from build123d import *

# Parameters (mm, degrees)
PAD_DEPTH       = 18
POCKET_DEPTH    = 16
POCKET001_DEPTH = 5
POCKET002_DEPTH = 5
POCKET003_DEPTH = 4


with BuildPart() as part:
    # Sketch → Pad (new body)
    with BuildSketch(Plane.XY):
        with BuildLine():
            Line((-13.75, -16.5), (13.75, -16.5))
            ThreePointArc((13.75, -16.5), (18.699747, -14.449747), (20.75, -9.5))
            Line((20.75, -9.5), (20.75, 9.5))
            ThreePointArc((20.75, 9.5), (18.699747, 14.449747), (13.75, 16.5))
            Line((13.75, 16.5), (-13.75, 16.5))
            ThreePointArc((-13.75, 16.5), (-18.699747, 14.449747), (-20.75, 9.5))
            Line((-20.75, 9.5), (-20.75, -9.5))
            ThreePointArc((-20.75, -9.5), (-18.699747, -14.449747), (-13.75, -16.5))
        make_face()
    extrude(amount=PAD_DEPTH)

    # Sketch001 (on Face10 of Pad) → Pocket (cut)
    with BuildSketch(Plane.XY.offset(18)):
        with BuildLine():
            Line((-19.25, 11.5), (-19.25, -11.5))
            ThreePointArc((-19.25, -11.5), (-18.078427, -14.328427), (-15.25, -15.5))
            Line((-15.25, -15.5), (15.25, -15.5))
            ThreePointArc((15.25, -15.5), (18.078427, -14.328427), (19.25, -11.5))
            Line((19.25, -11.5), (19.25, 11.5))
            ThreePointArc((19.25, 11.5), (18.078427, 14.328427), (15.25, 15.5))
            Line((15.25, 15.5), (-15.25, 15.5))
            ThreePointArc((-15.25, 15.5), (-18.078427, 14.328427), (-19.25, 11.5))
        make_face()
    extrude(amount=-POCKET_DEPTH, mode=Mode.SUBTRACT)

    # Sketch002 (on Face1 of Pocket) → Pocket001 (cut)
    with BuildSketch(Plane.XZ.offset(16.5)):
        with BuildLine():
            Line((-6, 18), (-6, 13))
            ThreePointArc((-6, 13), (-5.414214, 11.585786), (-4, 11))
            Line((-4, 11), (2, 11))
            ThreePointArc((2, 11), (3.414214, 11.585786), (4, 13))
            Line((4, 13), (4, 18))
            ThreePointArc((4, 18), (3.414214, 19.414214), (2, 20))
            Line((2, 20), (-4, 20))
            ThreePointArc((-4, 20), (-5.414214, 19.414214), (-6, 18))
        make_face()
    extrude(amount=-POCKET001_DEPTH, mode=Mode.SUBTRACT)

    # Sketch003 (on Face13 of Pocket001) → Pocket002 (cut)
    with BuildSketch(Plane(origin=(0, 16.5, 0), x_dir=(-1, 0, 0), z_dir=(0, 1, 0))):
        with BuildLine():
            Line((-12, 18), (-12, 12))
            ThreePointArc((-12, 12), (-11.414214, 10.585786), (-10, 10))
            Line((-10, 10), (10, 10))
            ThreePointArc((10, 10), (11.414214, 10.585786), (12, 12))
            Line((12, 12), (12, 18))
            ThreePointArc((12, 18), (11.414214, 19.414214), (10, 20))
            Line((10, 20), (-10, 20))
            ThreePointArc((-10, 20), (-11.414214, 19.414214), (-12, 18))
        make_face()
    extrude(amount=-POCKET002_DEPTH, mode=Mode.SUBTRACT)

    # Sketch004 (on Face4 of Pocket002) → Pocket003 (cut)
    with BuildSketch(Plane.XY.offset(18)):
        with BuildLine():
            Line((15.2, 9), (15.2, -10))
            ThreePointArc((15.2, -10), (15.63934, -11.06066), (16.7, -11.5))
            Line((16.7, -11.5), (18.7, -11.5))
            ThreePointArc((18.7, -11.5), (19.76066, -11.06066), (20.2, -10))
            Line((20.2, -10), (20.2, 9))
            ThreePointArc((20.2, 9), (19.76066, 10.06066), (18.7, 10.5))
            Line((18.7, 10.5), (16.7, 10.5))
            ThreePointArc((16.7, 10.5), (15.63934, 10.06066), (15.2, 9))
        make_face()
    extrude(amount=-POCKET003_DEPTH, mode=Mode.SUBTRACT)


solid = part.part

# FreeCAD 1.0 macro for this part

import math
import FreeCAD as App
import Part
import Sketcher

V = App.Vector
Q = App.Units.Quantity

doc = App.newDocument("Part")
params = doc.addObject("Spreadsheet::Sheet", "Params")
for row, (alias, value) in enumerate([
    ("sketch1_radius", "7.000002 mm"),
    ("sketch1_height", "19 mm"),
    ("sketch1_width", "27.5 mm"),
    ("pad1_length", "18 mm"),
    ("sketch2_radius", "4 mm"),
    ("sketch2_height", "23 mm"),
    ("sketch2_width", "30.5 mm"),
    ("pocket1_length", "16 mm"),
    ("sketch3_radius", "1.999999 mm"),
    ("sketch3_width", "6 mm"),
    ("sketch3_height", "5 mm"),
    ("pocket2_length", "5 mm"),
    ("sketch4_radius", "1.999999 mm"),
    ("sketch4_width", "20 mm"),
    ("sketch4_height", "6 mm"),
    ("pocket3_length", "5 mm"),
    ("sketch5_radius", "1.500001 mm"),
    ("sketch5_width", "2 mm"),
    ("sketch5_height", "19 mm"),
    ("pocket4_length", "4 mm"),
], start=1):
    params.set(f"A{row}", alias)
    params.set(f"B{row}", "=" + value)
    params.setAlias(f"B{row}", alias)

body = doc.addObject("PartDesign::Body", "Body")

sketch1 = doc.addObject("Sketcher::SketchObject", "Sketch")
body.addObject(sketch1)
sketch1.AttachmentSupport = (doc.XY_Plane, [""])
sketch1.MapMode = "FlatFace"
sketch1.addGeometry(Part.LineSegment(V(-13.75, -16.5, 0), V(13.75, -16.5, 0)), False)
sketch1.addGeometry(Part.ArcOfCircle(Part.Circle(V(13.749998, -9.499998, 0), V(0, 0, 1), 7.000002), math.radians(-89.999987), math.radians(-0.000013)), False)
sketch1.addGeometry(Part.LineSegment(V(20.75, -9.5, 0), V(20.75, 9.5, 0)), False)
sketch1.addGeometry(Part.ArcOfCircle(Part.Circle(V(13.749998, 9.499998, 0), V(0, 0, 1), 7.000002), math.radians(0.000013), math.radians(89.999987)), False)
sketch1.addGeometry(Part.LineSegment(V(13.75, 16.5, 0), V(-13.75, 16.5, 0)), False)
sketch1.addGeometry(Part.ArcOfCircle(Part.Circle(V(-13.749998, 9.499998, 0), V(0, 0, 1), 7.000002), math.radians(90.000013), math.radians(179.999987)), False)
sketch1.addGeometry(Part.LineSegment(V(-20.75, 9.5, 0), V(-20.75, -9.5, 0)), False)
sketch1.addGeometry(Part.ArcOfCircle(Part.Circle(V(-13.749998, -9.499998, 0), V(0, 0, 1), 7.000002), math.radians(-179.999987), math.radians(-90.000013)), False)
sketch1.addConstraint(Sketcher.Constraint("Tangent", 0, 2, 1, 1))
sketch1.addConstraint(Sketcher.Constraint("Tangent", 1, 2, 2, 1))
sketch1.addConstraint(Sketcher.Constraint("Tangent", 2, 2, 3, 1))
sketch1.addConstraint(Sketcher.Constraint("Tangent", 3, 2, 4, 1))
sketch1.addConstraint(Sketcher.Constraint("Tangent", 4, 2, 5, 1))
sketch1.addConstraint(Sketcher.Constraint("Tangent", 5, 2, 6, 1))
sketch1.addConstraint(Sketcher.Constraint("Tangent", 6, 2, 7, 1))
sketch1.addConstraint(Sketcher.Constraint("Tangent", 7, 2, 0, 1))
sketch1.addConstraint(Sketcher.Constraint("Horizontal", 0))
sketch1.addConstraint(Sketcher.Constraint("Vertical", 2))
sketch1.addConstraint(Sketcher.Constraint("Horizontal", 4))
sketch1.addConstraint(Sketcher.Constraint("Vertical", 6))
sketch1.addConstraint(Sketcher.Constraint("Equal", 1, 3))
sketch1.addConstraint(Sketcher.Constraint("Equal", 3, 5))
sketch1.addConstraint(Sketcher.Constraint("Equal", 5, 7))
sketch1.addConstraint(Sketcher.Constraint("Symmetric", 1, 3, 5, 3, -1, 1))
sketch1.addConstraint(Sketcher.Constraint("Radius", 1, Q("7.000002 mm")))
sketch1.addConstraint(Sketcher.Constraint("DistanceY", 2, 1, 2, 2, Q("19 mm")))
sketch1.addConstraint(Sketcher.Constraint("DistanceX", 0, 1, 0, 2, Q("27.5 mm")))
sketch1.setExpression("Constraints[16]", "Params.sketch1_radius")
sketch1.setExpression("Constraints[17]", "Params.sketch1_height")
sketch1.setExpression("Constraints[18]", "Params.sketch1_width")
pad1 = doc.addObject("PartDesign::Pad", "Pad")
body.addObject(pad1)
pad1.Profile = sketch1
pad1.setExpression("Length", "Params.pad1_length")

sketch2 = doc.addObject("Sketcher::SketchObject", "Sketch001")
body.addObject(sketch2)
sketch2.AttachmentSupport = (doc.XY_Plane, [""])
sketch2.MapMode = "FlatFace"
sketch2.AttachmentOffset = App.Placement(V(0, 0, 18), App.Rotation())
sketch2.addGeometry(Part.LineSegment(V(-19.25, 11.5, 0), V(-19.25, -11.5, 0)), False)
sketch2.addGeometry(Part.ArcOfCircle(Part.Circle(V(-15.25, -11.5, 0), V(0, 0, 1), 4), math.radians(-179.999994), math.radians(-90.000006)), False)
sketch2.addGeometry(Part.LineSegment(V(-15.25, -15.5, 0), V(15.25, -15.5, 0)), False)
sketch2.addGeometry(Part.ArcOfCircle(Part.Circle(V(15.25, -11.5, 0), V(0, 0, 1), 4), math.radians(-89.999994), math.radians(-0.000006)), False)
sketch2.addGeometry(Part.LineSegment(V(19.25, -11.5, 0), V(19.25, 11.5, 0)), False)
sketch2.addGeometry(Part.ArcOfCircle(Part.Circle(V(15.25, 11.5, 0), V(0, 0, 1), 4), math.radians(0.000006), math.radians(89.999994)), False)
sketch2.addGeometry(Part.LineSegment(V(15.25, 15.5, 0), V(-15.25, 15.5, 0)), False)
sketch2.addGeometry(Part.ArcOfCircle(Part.Circle(V(-15.25, 11.5, 0), V(0, 0, 1), 4), math.radians(90.000006), math.radians(179.999994)), False)
sketch2.addConstraint(Sketcher.Constraint("Tangent", 0, 2, 1, 1))
sketch2.addConstraint(Sketcher.Constraint("Tangent", 1, 2, 2, 1))
sketch2.addConstraint(Sketcher.Constraint("Tangent", 2, 2, 3, 1))
sketch2.addConstraint(Sketcher.Constraint("Tangent", 3, 2, 4, 1))
sketch2.addConstraint(Sketcher.Constraint("Tangent", 4, 2, 5, 1))
sketch2.addConstraint(Sketcher.Constraint("Tangent", 5, 2, 6, 1))
sketch2.addConstraint(Sketcher.Constraint("Tangent", 6, 2, 7, 1))
sketch2.addConstraint(Sketcher.Constraint("Tangent", 7, 2, 0, 1))
sketch2.addConstraint(Sketcher.Constraint("Vertical", 0))
sketch2.addConstraint(Sketcher.Constraint("Horizontal", 2))
sketch2.addConstraint(Sketcher.Constraint("Vertical", 4))
sketch2.addConstraint(Sketcher.Constraint("Horizontal", 6))
sketch2.addConstraint(Sketcher.Constraint("Equal", 1, 3))
sketch2.addConstraint(Sketcher.Constraint("Equal", 3, 5))
sketch2.addConstraint(Sketcher.Constraint("Equal", 5, 7))
sketch2.addConstraint(Sketcher.Constraint("Symmetric", 1, 3, 5, 3, -1, 1))
sketch2.addConstraint(Sketcher.Constraint("Radius", 1, Q("4 mm")))
sketch2.addConstraint(Sketcher.Constraint("DistanceY", 0, 2, 0, 1, Q("23 mm")))
sketch2.addConstraint(Sketcher.Constraint("DistanceX", 2, 1, 2, 2, Q("30.5 mm")))
sketch2.setExpression("Constraints[16]", "Params.sketch2_radius")
sketch2.setExpression("Constraints[17]", "Params.sketch2_height")
sketch2.setExpression("Constraints[18]", "Params.sketch2_width")
pocket1 = doc.addObject("PartDesign::Pocket", "Pocket")
body.addObject(pocket1)
pocket1.Profile = sketch2
pocket1.setExpression("Length", "Params.pocket1_length")

sketch3 = doc.addObject("Sketcher::SketchObject", "Sketch002")
body.addObject(sketch3)
sketch3.AttachmentSupport = (doc.XZ_Plane, [""])
sketch3.MapMode = "FlatFace"
sketch3.AttachmentOffset = App.Placement(V(0, 0, 16.5), App.Rotation())
sketch3.addGeometry(Part.LineSegment(V(-6, 18, 0), V(-6, 13, 0)), False)
sketch3.addGeometry(Part.ArcOfCircle(Part.Circle(V(-4.000001, 12.999999, 0), V(0, 0, 1), 1.999999), math.radians(179.999957), math.radians(270.000043)), False)
sketch3.addGeometry(Part.LineSegment(V(-4, 11, 0), V(2, 11, 0)), False)
sketch3.addGeometry(Part.ArcOfCircle(Part.Circle(V(2.000001, 12.999999, 0), V(0, 0, 1), 1.999999), math.radians(-90.000043), math.radians(0.000043)), False)
sketch3.addGeometry(Part.LineSegment(V(4, 13, 0), V(4, 18, 0)), False)
sketch3.addGeometry(Part.ArcOfCircle(Part.Circle(V(2.000001, 18.000001, 0), V(0, 0, 1), 1.999999), math.radians(-0.000043), math.radians(90.000043)), False)
sketch3.addGeometry(Part.LineSegment(V(2, 20, 0), V(-4, 20, 0)), False)
sketch3.addGeometry(Part.ArcOfCircle(Part.Circle(V(-4.000001, 18.000001, 0), V(0, 0, 1), 1.999999), math.radians(89.999957), math.radians(180.000043)), False)
sketch3.addConstraint(Sketcher.Constraint("Tangent", 0, 2, 1, 1))
sketch3.addConstraint(Sketcher.Constraint("Tangent", 1, 2, 2, 1))
sketch3.addConstraint(Sketcher.Constraint("Tangent", 2, 2, 3, 1))
sketch3.addConstraint(Sketcher.Constraint("Tangent", 3, 2, 4, 1))
sketch3.addConstraint(Sketcher.Constraint("Tangent", 4, 2, 5, 1))
sketch3.addConstraint(Sketcher.Constraint("Tangent", 5, 2, 6, 1))
sketch3.addConstraint(Sketcher.Constraint("Tangent", 6, 2, 7, 1))
sketch3.addConstraint(Sketcher.Constraint("Tangent", 7, 2, 0, 1))
sketch3.addConstraint(Sketcher.Constraint("Vertical", 0))
sketch3.addConstraint(Sketcher.Constraint("Horizontal", 2))
sketch3.addConstraint(Sketcher.Constraint("Vertical", 4))
sketch3.addConstraint(Sketcher.Constraint("Horizontal", 6))
sketch3.addConstraint(Sketcher.Constraint("Equal", 1, 3))
sketch3.addConstraint(Sketcher.Constraint("Equal", 3, 5))
sketch3.addConstraint(Sketcher.Constraint("Equal", 5, 7))
sketch3.addConstraint(Sketcher.Constraint("Radius", 1, Q("1.999999 mm")))
sketch3.addConstraint(Sketcher.Constraint("DistanceX", 2, 1, 2, 2, Q("6 mm")))
sketch3.addConstraint(Sketcher.Constraint("DistanceY", 0, 2, 0, 1, Q("5 mm")))
sketch3.addConstraint(Sketcher.Constraint("DistanceX", 1, 3, -1, 1, Q("4.000001 mm")))
sketch3.addConstraint(Sketcher.Constraint("DistanceY", -1, 1, 1, 3, Q("12.999999 mm")))
sketch3.setExpression("Constraints[15]", "Params.sketch3_radius")
sketch3.setExpression("Constraints[16]", "Params.sketch3_width")
sketch3.setExpression("Constraints[17]", "Params.sketch3_height")
pocket2 = doc.addObject("PartDesign::Pocket", "Pocket001")
body.addObject(pocket2)
pocket2.Profile = sketch3
pocket2.setExpression("Length", "Params.pocket2_length")

sketch4 = doc.addObject("Sketcher::SketchObject", "Sketch003")
body.addObject(sketch4)
sketch4.AttachmentSupport = (doc.XZ_Plane, [""])
sketch4.MapMode = "FlatFace"
sketch4.AttachmentOffset = App.Placement(V(0, 0, -16.5), App.Rotation())
sketch4.addGeometry(Part.LineSegment(V(12, 18, 0), V(12, 12, 0)), False)
sketch4.addGeometry(Part.ArcOfCircle(Part.Circle(V(10.000001, 11.999999, 0), V(0, 0, 1), 1.999999), math.radians(-90.000043), math.radians(0.000043)), False)
sketch4.addGeometry(Part.LineSegment(V(10, 10, 0), V(-10, 10, 0)), False)
sketch4.addGeometry(Part.ArcOfCircle(Part.Circle(V(-10.000001, 11.999999, 0), V(0, 0, 1), 1.999999), math.radians(179.999957), math.radians(270.000043)), False)
sketch4.addGeometry(Part.LineSegment(V(-12, 12, 0), V(-12, 18, 0)), False)
sketch4.addGeometry(Part.ArcOfCircle(Part.Circle(V(-10.000001, 18.000001, 0), V(0, 0, 1), 1.999999), math.radians(89.999957), math.radians(180.000043)), False)
sketch4.addGeometry(Part.LineSegment(V(-10, 20, 0), V(10, 20, 0)), False)
sketch4.addGeometry(Part.ArcOfCircle(Part.Circle(V(10.000001, 18.000001, 0), V(0, 0, 1), 1.999999), math.radians(-0.000043), math.radians(90.000043)), False)
sketch4.addConstraint(Sketcher.Constraint("Tangent", 0, 2, 1, 2))
sketch4.addConstraint(Sketcher.Constraint("Tangent", 1, 1, 2, 1))
sketch4.addConstraint(Sketcher.Constraint("Tangent", 2, 2, 3, 2))
sketch4.addConstraint(Sketcher.Constraint("Tangent", 3, 1, 4, 1))
sketch4.addConstraint(Sketcher.Constraint("Tangent", 4, 2, 5, 2))
sketch4.addConstraint(Sketcher.Constraint("Tangent", 5, 1, 6, 1))
sketch4.addConstraint(Sketcher.Constraint("Tangent", 6, 2, 7, 2))
sketch4.addConstraint(Sketcher.Constraint("Tangent", 7, 1, 0, 1))
sketch4.addConstraint(Sketcher.Constraint("Vertical", 0))
sketch4.addConstraint(Sketcher.Constraint("Horizontal", 2))
sketch4.addConstraint(Sketcher.Constraint("Vertical", 4))
sketch4.addConstraint(Sketcher.Constraint("Horizontal", 6))
sketch4.addConstraint(Sketcher.Constraint("Equal", 1, 3))
sketch4.addConstraint(Sketcher.Constraint("Equal", 3, 5))
sketch4.addConstraint(Sketcher.Constraint("Equal", 5, 7))
sketch4.addConstraint(Sketcher.Constraint("Radius", 1, Q("1.999999 mm")))
sketch4.addConstraint(Sketcher.Constraint("DistanceX", 2, 2, 2, 1, Q("20 mm")))
sketch4.addConstraint(Sketcher.Constraint("DistanceY", 0, 2, 0, 1, Q("6 mm")))
sketch4.addConstraint(Sketcher.Constraint("DistanceX", -1, 1, 1, 3, Q("10.000001 mm")))
sketch4.addConstraint(Sketcher.Constraint("DistanceY", -1, 1, 1, 3, Q("11.999999 mm")))
sketch4.setExpression("Constraints[15]", "Params.sketch4_radius")
sketch4.setExpression("Constraints[16]", "Params.sketch4_width")
sketch4.setExpression("Constraints[17]", "Params.sketch4_height")
pocket3 = doc.addObject("PartDesign::Pocket", "Pocket002")
body.addObject(pocket3)
pocket3.Profile = sketch4
pocket3.setExpression("Length", "Params.pocket3_length")
pocket3.Reversed = True

sketch5 = doc.addObject("Sketcher::SketchObject", "Sketch004")
body.addObject(sketch5)
sketch5.AttachmentSupport = (doc.XY_Plane, [""])
sketch5.MapMode = "FlatFace"
sketch5.AttachmentOffset = App.Placement(V(0, 0, 18), App.Rotation())
sketch5.addGeometry(Part.LineSegment(V(15.2, 9, 0), V(15.2, -10, 0)), False)
sketch5.addGeometry(Part.ArcOfCircle(Part.Circle(V(16.700001, -9.999999, 0), V(0, 0, 1), 1.500001), math.radians(-179.999978), math.radians(-90.000022)), False)
sketch5.addGeometry(Part.LineSegment(V(16.7, -11.5, 0), V(18.7, -11.5, 0)), False)
sketch5.addGeometry(Part.ArcOfCircle(Part.Circle(V(18.699999, -9.999999, 0), V(0, 0, 1), 1.500001), math.radians(-89.999978), math.radians(-0.000022)), False)
sketch5.addGeometry(Part.LineSegment(V(20.2, -10, 0), V(20.2, 9, 0)), False)
sketch5.addGeometry(Part.ArcOfCircle(Part.Circle(V(18.699999, 8.999999, 0), V(0, 0, 1), 1.500001), math.radians(0.000022), math.radians(89.999978)), False)
sketch5.addGeometry(Part.LineSegment(V(18.7, 10.5, 0), V(16.7, 10.5, 0)), False)
sketch5.addGeometry(Part.ArcOfCircle(Part.Circle(V(16.700001, 8.999999, 0), V(0, 0, 1), 1.500001), math.radians(90.000022), math.radians(179.999978)), False)
sketch5.addConstraint(Sketcher.Constraint("Tangent", 0, 2, 1, 1))
sketch5.addConstraint(Sketcher.Constraint("Tangent", 1, 2, 2, 1))
sketch5.addConstraint(Sketcher.Constraint("Tangent", 2, 2, 3, 1))
sketch5.addConstraint(Sketcher.Constraint("Tangent", 3, 2, 4, 1))
sketch5.addConstraint(Sketcher.Constraint("Tangent", 4, 2, 5, 1))
sketch5.addConstraint(Sketcher.Constraint("Tangent", 5, 2, 6, 1))
sketch5.addConstraint(Sketcher.Constraint("Tangent", 6, 2, 7, 1))
sketch5.addConstraint(Sketcher.Constraint("Tangent", 7, 2, 0, 1))
sketch5.addConstraint(Sketcher.Constraint("Vertical", 0))
sketch5.addConstraint(Sketcher.Constraint("Horizontal", 2))
sketch5.addConstraint(Sketcher.Constraint("Vertical", 4))
sketch5.addConstraint(Sketcher.Constraint("Horizontal", 6))
sketch5.addConstraint(Sketcher.Constraint("Equal", 1, 3))
sketch5.addConstraint(Sketcher.Constraint("Equal", 3, 5))
sketch5.addConstraint(Sketcher.Constraint("Equal", 5, 7))
sketch5.addConstraint(Sketcher.Constraint("Radius", 1, Q("1.500001 mm")))
sketch5.addConstraint(Sketcher.Constraint("DistanceX", 2, 1, 2, 2, Q("2 mm")))
sketch5.addConstraint(Sketcher.Constraint("DistanceY", 0, 2, 0, 1, Q("19 mm")))
sketch5.addConstraint(Sketcher.Constraint("DistanceY", 1, 3, -1, 1, Q("9.999999 mm")))
sketch5.addConstraint(Sketcher.Constraint("DistanceX", -1, 1, 1, 3, Q("16.700001 mm")))
sketch5.setExpression("Constraints[15]", "Params.sketch5_radius")
sketch5.setExpression("Constraints[16]", "Params.sketch5_width")
sketch5.setExpression("Constraints[17]", "Params.sketch5_height")
pocket4 = doc.addObject("PartDesign::Pocket", "Pocket003")
body.addObject(pocket4)
pocket4.Profile = sketch5
pocket4.setExpression("Length", "Params.pocket4_length")

doc.recompute()
